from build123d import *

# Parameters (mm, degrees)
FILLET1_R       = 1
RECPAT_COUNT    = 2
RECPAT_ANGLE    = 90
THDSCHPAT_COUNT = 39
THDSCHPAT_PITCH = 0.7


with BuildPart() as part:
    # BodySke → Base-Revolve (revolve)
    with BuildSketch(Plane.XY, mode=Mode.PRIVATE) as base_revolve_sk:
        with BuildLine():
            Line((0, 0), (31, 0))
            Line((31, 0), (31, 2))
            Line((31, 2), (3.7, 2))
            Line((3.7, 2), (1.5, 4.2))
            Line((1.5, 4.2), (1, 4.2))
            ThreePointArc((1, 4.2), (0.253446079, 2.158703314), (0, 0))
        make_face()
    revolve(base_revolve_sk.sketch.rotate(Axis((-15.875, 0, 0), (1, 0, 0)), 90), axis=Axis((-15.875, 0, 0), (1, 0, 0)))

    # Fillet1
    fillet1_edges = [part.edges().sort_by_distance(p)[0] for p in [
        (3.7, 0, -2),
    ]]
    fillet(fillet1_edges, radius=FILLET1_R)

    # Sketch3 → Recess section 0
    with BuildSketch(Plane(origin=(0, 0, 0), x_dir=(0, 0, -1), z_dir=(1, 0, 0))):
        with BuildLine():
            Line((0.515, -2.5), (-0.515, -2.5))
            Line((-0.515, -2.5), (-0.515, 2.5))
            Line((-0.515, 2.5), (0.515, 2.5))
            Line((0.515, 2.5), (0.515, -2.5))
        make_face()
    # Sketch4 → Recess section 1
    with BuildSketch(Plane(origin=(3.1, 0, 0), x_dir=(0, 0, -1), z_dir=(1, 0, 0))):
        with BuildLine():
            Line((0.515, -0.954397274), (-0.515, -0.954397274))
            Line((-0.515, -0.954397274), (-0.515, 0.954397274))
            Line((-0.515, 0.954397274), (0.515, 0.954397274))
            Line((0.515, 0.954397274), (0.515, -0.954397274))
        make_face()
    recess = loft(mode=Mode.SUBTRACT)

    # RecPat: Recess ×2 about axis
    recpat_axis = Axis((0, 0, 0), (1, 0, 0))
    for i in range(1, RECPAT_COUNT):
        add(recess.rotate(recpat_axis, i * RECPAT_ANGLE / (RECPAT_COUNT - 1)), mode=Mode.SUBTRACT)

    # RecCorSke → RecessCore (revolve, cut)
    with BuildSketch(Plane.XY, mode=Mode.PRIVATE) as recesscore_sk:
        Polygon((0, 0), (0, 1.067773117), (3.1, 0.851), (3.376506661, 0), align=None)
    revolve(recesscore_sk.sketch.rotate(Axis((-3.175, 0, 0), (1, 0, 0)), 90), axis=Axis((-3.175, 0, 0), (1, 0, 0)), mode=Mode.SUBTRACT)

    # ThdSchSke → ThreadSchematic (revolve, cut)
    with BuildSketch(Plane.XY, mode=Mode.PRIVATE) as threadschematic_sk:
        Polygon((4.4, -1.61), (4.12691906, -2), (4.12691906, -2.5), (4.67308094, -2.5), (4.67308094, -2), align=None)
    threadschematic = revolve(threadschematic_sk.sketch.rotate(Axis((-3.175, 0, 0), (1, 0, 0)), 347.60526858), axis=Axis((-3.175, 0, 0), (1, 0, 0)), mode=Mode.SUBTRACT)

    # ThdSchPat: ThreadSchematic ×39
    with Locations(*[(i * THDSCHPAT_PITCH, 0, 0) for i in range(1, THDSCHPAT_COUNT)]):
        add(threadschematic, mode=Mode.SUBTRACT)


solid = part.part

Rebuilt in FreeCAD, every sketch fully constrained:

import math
import FreeCAD as App
import Part
import Sketcher

V = App.Vector
Q = App.Units.Quantity


def edges_at(feature, points):
    """Names of the edges that pass closest to the given points."""
    edges = feature.Shape.Edges
    near = lambda p: min(range(len(edges)), key=lambda i: edges[i].distToShape(Part.Vertex(*p))[0])
    return sorted({f"Edge{near(p) + 1}" for p in points})

doc = App.newDocument("Part")
body = doc.addObject("PartDesign::Body", "Body")

sketch1 = doc.addObject("Sketcher::SketchObject", "Sketch")
body.addObject(sketch1)
sketch1.AttachmentSupport = (doc.XY_Plane, [""])
sketch1.MapMode = "FlatFace"
sketch1.addGeometry(Part.LineSegment(V(0, 0, 0), V(31, 0, 0)), False)
sketch1.addGeometry(Part.LineSegment(V(31, 0, 0), V(31, 2, 0)), False)
sketch1.addGeometry(Part.LineSegment(V(31, 2, 0), V(3.7, 2, 0)), False)
sketch1.addGeometry(Part.LineSegment(V(3.7, 2, 0), V(1.5, 4.2, 0)), False)
sketch1.addGeometry(Part.LineSegment(V(1.5, 4.2, 0), V(1, 4.2, 0)), False)
sketch1.addGeometry(Part.ArcOfCircle(Part.Circle(V(9.3, 0, 0), V(0, 0, 1), 9.3), math.radians(153), math.radians(180)), False)
sketch1.addConstraint(Sketcher.Constraint("Coincident", 0, 2, 1, 1))
sketch1.addConstraint(Sketcher.Constraint("Coincident", 1, 2, 2, 1))
sketch1.addConstraint(Sketcher.Constraint("Coincident", 2, 2, 3, 1))
sketch1.addConstraint(Sketcher.Constraint("Coincident", 3, 2, 4, 1))
sketch1.addConstraint(Sketcher.Constraint("Coincident", 4, 2, 5, 1))
sketch1.addConstraint(Sketcher.Constraint("Coincident", 5, 2, 0, 1))
sketch1.addConstraint(Sketcher.Constraint("Horizontal", 0))
sketch1.addConstraint(Sketcher.Constraint("Vertical", 1))
sketch1.addConstraint(Sketcher.Constraint("Horizontal", 2))
sketch1.addConstraint(Sketcher.Constraint("Horizontal", 4))
sketch1.addConstraint(Sketcher.Constraint("Coincident", 5, 2, -1, 1))
sketch1.addConstraint(Sketcher.Constraint("PointOnObject", 5, 3, -1))
sketch1.addConstraint(Sketcher.Constraint("DistanceX", 0, 1, 0, 2, 31.0))
sketch1.addConstraint(Sketcher.Constraint("DistanceY", 1, 1, 1, 2, 2.0))
sketch1.addConstraint(Sketcher.Constraint("Angle", 3, Q("135 deg")))
sketch1.addConstraint(Sketcher.Constraint("Radius", 5, 9.32))
sketch1.addConstraint(Sketcher.Constraint("DistanceX", 2, 2, 2, 1, 27.3))
sketch1.addConstraint(Sketcher.Constraint("DistanceX", 4, 2, 4, 1, 0.5))
revolution = doc.addObject("PartDesign::Revolution", "Revolution")
body.addObject(revolution)
revolution.Profile = sketch1
revolution.ReferenceAxis = (sketch1, ["H_Axis"])
revolution.Angle = 360
doc.recompute()

fillet = doc.addObject("PartDesign::Fillet", "Fillet")
body.addObject(fillet)
fillet.Base = (revolution, edges_at(revolution, [(3.7, 0, -2)]))
fillet.Radius = 1

sketch2 = doc.addObject("Sketcher::SketchObject", "Sketch001")
body.addObject(sketch2)
sketch2.AttachmentSupport = (doc.YZ_Plane, [""])
sketch2.MapMode = "FlatFace"
sketch2.addGeometry(Part.LineSegment(V(-2.5, 0.5, 0), V(-2.5, -0.5, 0)), False)
sketch2.addGeometry(Part.LineSegment(V(-2.5, -0.5, 0), V(2.5, -0.5, 0)), False)
sketch2.addGeometry(Part.LineSegment(V(2.5, -0.5, 0), V(2.5, 0.5, 0)), False)
sketch2.addGeometry(Part.LineSegment(V(2.5, 0.5, 0), V(-2.5, 0.5, 0)), False)
sketch2.addConstraint(Sketcher.Constraint("Coincident", 0, 2, 1, 1))
sketch2.addConstraint(Sketcher.Constraint("Coincident", 1, 2, 2, 1))
sketch2.addConstraint(Sketcher.Constraint("Coincident", 2, 2, 3, 1))
sketch2.addConstraint(Sketcher.Constraint("Coincident", 3, 2, 0, 1))
sketch2.addConstraint(Sketcher.Constraint("Vertical", 0))
sketch2.addConstraint(Sketcher.Constraint("Horizontal", 1))
sketch2.addConstraint(Sketcher.Constraint("Vertical", 2))
sketch2.addConstraint(Sketcher.Constraint("Horizontal", 3))
sketch2.addConstraint(Sketcher.Constraint("Symmetric", 0, 2, 2, 2, -1, 1))
sketch2.addConstraint(Sketcher.Constraint("DistanceX", 1, 1, 1, 2, 5.0))
sketch2.addConstraint(Sketcher.Constraint("DistanceY", 0, 2, 0, 1, 1.03))

sketch3 = doc.addObject("Sketcher::SketchObject", "Sketch002")
body.addObject(sketch3)
sketch3.AttachmentSupport = (doc.YZ_Plane, [""])
sketch3.MapMode = "FlatFace"
sketch3.AttachmentOffset = App.Placement(V(0, 0, 3.1), App.Rotation())
sketch3.addGeometry(Part.LineSegment(V(-1, 0.5, 0), V(-1, -0.5, 0)), False)
sketch3.addGeometry(Part.LineSegment(V(-1, -0.5, 0), V(1, -0.5, 0)), False)
sketch3.addGeometry(Part.LineSegment(V(1, -0.5, 0), V(1, 0.5, 0)), False)
sketch3.addGeometry(Part.LineSegment(V(1, 0.5, 0), V(-1, 0.5, 0)), False)
sketch3.addConstraint(Sketcher.Constraint("Coincident", 0, 2, 1, 1))
sketch3.addConstraint(Sketcher.Constraint("Coincident", 1, 2, 2, 1))
sketch3.addConstraint(Sketcher.Constraint("Coincident", 2, 2, 3, 1))
sketch3.addConstraint(Sketcher.Constraint("Coincident", 3, 2, 0, 1))
sketch3.addConstraint(Sketcher.Constraint("Vertical", 0))
sketch3.addConstraint(Sketcher.Constraint("Horizontal", 1))
sketch3.addConstraint(Sketcher.Constraint("Vertical", 2))
sketch3.addConstraint(Sketcher.Constraint("Horizontal", 3))
sketch3.addConstraint(Sketcher.Constraint("Symmetric", 0, 2, 2, 2, -1, 1))
sketch3.addConstraint(Sketcher.Constraint("DistanceY", 0, 2, 0, 1, 1.03))
sketch3.addConstraint(Sketcher.Constraint("DistanceX", 1, 1, 1, 2, 1.908795))

subtractiveloft = doc.addObject("PartDesign::SubtractiveLoft", "SubtractiveLoft")
body.addObject(subtractiveloft)
subtractiveloft.Profile = sketch2
subtractiveloft.Sections = [sketch3]
doc.recompute()

polarpattern = doc.addObject("PartDesign::PolarPattern", "PolarPattern")
body.addObject(polarpattern)
polarpattern.Originals = [subtractiveloft]
polarpattern.Axis = (doc.X_Axis, [""])
polarpattern.Angle = 90
polarpattern.Occurrences = 2
body.Tip = polarpattern

sketch4 = doc.addObject("Sketcher::SketchObject", "Sketch003")
body.addObject(sketch4)
sketch4.AttachmentSupport = (doc.XY_Plane, [""])
sketch4.MapMode = "FlatFace"
sketch4.addGeometry(Part.LineSegment(V(0, 1.1, 0), V(0, 0, 0)), False)
sketch4.addGeometry(Part.LineSegment(V(0, 0, 0), V(3.4, 0, 0)), False)
sketch4.addGeometry(Part.LineSegment(V(3.4, 0, 0), V(3.1, 0.9, 0)), False)
sketch4.addGeometry(Part.LineSegment(V(3.1, 0.9, 0), V(0, 1.1, 0)), False)
sketch4.addConstraint(Sketcher.Constraint("Coincident", 0, 2, 1, 1))
sketch4.addConstraint(Sketcher.Constraint("Coincident", 1, 2, 2, 1))
sketch4.addConstraint(Sketcher.Constraint("Coincident", 2, 2, 3, 1))
sketch4.addConstraint(Sketcher.Constraint("Coincident", 3, 2, 0, 1))
sketch4.addConstraint(Sketcher.Constraint("Vertical", 0))
sketch4.addConstraint(Sketcher.Constraint("Horizontal", 1))
sketch4.addConstraint(Sketcher.Constraint("Coincident", 0, 2, -1, 1))
sketch4.addConstraint(Sketcher.Constraint("Angle", 2, Q("108 deg")))
sketch4.addConstraint(Sketcher.Constraint("Angle", 3, Q("176 deg")))
sketch4.addConstraint(Sketcher.Constraint("DistanceX", -1, 1, 2, 2, 3.1))
sketch4.addConstraint(Sketcher.Constraint("DistanceY", -1, 1, 2, 2, 0.851))
groove = doc.addObject("PartDesign::Groove", "Groove")
body.addObject(groove)
groove.Profile = sketch4
groove.ReferenceAxis = (sketch4, ["H_Axis"])
groove.Angle = 360

sketch5 = doc.addObject("Sketcher::SketchObject", "Sketch004")
body.addObject(sketch5)
sketch5.AttachmentSupport = (doc.XY_Plane, [""])
sketch5.MapMode = "FlatFace"
sketch5.addGeometry(Part.LineSegment(V(4.4, -1.61, 0), V(4.13, -2, 0)), False)
sketch5.addGeometry(Part.LineSegment(V(4.13, -2, 0), V(4.13, -2.5, 0)), False)
sketch5.addGeometry(Part.LineSegment(V(4.13, -2.5, 0), V(4.67, -2.5, 0)), False)
sketch5.addGeometry(Part.LineSegment(V(4.67, -2.5, 0), V(4.67, -2, 0)), False)
sketch5.addGeometry(Part.LineSegment(V(4.67, -2, 0), V(4.4, -1.61, 0)), False)
sketch5.addConstraint(Sketcher.Constraint("Coincident", 0, 2, 1, 1))
sketch5.addConstraint(Sketcher.Constraint("Coincident", 1, 2, 2, 1))
sketch5.addConstraint(Sketcher.Constraint("Coincident", 2, 2, 3, 1))
sketch5.addConstraint(Sketcher.Constraint("Coincident", 3, 2, 4, 1))
sketch5.addConstraint(Sketcher.Constraint("Coincident", 4, 2, 0, 1))
sketch5.addConstraint(Sketcher.Constraint("Vertical", 1))
sketch5.addConstraint(Sketcher.Constraint("Horizontal", 2))
sketch5.addConstraint(Sketcher.Constraint("Vertical", 3))
sketch5.addConstraint(Sketcher.Constraint("Horizontal", 0, 2, 3, 2))
sketch5.addConstraint(Sketcher.Constraint("Equal", 0, 4))
sketch5.addConstraint(Sketcher.Constraint("Angle", 0, Q("-125 deg")))
sketch5.addConstraint(Sketcher.Constraint("DistanceY", 1, 2, 1, 1, 0.5))
sketch5.addConstraint(Sketcher.Constraint("DistanceY", 0, 2, -1, 1, 2.0))
sketch5.addConstraint(Sketcher.Constraint("DistanceX", -1, 1, 4, 2, 4.4))
sketch5.addConstraint(Sketcher.Constraint("DistanceY", 4, 2, -1, 1, 1.61))
groove2 = doc.addObject("PartDesign::Groove", "Groove001")
body.addObject(groove2)
groove2.Profile = sketch5
groove2.ReferenceAxis = (sketch5, ["H_Axis"])
groove2.Angle = 360
doc.recompute()

linearpattern = doc.addObject("PartDesign::LinearPattern", "LinearPattern")
body.addObject(linearpattern)
linearpattern.Originals = [groove2]
linearpattern.Direction = (doc.X_Axis, [""])
linearpattern.Mode = "offset"
linearpattern.Offset = 0.7
linearpattern.Occurrences = 39
body.Tip = linearpattern

doc.recompute()
